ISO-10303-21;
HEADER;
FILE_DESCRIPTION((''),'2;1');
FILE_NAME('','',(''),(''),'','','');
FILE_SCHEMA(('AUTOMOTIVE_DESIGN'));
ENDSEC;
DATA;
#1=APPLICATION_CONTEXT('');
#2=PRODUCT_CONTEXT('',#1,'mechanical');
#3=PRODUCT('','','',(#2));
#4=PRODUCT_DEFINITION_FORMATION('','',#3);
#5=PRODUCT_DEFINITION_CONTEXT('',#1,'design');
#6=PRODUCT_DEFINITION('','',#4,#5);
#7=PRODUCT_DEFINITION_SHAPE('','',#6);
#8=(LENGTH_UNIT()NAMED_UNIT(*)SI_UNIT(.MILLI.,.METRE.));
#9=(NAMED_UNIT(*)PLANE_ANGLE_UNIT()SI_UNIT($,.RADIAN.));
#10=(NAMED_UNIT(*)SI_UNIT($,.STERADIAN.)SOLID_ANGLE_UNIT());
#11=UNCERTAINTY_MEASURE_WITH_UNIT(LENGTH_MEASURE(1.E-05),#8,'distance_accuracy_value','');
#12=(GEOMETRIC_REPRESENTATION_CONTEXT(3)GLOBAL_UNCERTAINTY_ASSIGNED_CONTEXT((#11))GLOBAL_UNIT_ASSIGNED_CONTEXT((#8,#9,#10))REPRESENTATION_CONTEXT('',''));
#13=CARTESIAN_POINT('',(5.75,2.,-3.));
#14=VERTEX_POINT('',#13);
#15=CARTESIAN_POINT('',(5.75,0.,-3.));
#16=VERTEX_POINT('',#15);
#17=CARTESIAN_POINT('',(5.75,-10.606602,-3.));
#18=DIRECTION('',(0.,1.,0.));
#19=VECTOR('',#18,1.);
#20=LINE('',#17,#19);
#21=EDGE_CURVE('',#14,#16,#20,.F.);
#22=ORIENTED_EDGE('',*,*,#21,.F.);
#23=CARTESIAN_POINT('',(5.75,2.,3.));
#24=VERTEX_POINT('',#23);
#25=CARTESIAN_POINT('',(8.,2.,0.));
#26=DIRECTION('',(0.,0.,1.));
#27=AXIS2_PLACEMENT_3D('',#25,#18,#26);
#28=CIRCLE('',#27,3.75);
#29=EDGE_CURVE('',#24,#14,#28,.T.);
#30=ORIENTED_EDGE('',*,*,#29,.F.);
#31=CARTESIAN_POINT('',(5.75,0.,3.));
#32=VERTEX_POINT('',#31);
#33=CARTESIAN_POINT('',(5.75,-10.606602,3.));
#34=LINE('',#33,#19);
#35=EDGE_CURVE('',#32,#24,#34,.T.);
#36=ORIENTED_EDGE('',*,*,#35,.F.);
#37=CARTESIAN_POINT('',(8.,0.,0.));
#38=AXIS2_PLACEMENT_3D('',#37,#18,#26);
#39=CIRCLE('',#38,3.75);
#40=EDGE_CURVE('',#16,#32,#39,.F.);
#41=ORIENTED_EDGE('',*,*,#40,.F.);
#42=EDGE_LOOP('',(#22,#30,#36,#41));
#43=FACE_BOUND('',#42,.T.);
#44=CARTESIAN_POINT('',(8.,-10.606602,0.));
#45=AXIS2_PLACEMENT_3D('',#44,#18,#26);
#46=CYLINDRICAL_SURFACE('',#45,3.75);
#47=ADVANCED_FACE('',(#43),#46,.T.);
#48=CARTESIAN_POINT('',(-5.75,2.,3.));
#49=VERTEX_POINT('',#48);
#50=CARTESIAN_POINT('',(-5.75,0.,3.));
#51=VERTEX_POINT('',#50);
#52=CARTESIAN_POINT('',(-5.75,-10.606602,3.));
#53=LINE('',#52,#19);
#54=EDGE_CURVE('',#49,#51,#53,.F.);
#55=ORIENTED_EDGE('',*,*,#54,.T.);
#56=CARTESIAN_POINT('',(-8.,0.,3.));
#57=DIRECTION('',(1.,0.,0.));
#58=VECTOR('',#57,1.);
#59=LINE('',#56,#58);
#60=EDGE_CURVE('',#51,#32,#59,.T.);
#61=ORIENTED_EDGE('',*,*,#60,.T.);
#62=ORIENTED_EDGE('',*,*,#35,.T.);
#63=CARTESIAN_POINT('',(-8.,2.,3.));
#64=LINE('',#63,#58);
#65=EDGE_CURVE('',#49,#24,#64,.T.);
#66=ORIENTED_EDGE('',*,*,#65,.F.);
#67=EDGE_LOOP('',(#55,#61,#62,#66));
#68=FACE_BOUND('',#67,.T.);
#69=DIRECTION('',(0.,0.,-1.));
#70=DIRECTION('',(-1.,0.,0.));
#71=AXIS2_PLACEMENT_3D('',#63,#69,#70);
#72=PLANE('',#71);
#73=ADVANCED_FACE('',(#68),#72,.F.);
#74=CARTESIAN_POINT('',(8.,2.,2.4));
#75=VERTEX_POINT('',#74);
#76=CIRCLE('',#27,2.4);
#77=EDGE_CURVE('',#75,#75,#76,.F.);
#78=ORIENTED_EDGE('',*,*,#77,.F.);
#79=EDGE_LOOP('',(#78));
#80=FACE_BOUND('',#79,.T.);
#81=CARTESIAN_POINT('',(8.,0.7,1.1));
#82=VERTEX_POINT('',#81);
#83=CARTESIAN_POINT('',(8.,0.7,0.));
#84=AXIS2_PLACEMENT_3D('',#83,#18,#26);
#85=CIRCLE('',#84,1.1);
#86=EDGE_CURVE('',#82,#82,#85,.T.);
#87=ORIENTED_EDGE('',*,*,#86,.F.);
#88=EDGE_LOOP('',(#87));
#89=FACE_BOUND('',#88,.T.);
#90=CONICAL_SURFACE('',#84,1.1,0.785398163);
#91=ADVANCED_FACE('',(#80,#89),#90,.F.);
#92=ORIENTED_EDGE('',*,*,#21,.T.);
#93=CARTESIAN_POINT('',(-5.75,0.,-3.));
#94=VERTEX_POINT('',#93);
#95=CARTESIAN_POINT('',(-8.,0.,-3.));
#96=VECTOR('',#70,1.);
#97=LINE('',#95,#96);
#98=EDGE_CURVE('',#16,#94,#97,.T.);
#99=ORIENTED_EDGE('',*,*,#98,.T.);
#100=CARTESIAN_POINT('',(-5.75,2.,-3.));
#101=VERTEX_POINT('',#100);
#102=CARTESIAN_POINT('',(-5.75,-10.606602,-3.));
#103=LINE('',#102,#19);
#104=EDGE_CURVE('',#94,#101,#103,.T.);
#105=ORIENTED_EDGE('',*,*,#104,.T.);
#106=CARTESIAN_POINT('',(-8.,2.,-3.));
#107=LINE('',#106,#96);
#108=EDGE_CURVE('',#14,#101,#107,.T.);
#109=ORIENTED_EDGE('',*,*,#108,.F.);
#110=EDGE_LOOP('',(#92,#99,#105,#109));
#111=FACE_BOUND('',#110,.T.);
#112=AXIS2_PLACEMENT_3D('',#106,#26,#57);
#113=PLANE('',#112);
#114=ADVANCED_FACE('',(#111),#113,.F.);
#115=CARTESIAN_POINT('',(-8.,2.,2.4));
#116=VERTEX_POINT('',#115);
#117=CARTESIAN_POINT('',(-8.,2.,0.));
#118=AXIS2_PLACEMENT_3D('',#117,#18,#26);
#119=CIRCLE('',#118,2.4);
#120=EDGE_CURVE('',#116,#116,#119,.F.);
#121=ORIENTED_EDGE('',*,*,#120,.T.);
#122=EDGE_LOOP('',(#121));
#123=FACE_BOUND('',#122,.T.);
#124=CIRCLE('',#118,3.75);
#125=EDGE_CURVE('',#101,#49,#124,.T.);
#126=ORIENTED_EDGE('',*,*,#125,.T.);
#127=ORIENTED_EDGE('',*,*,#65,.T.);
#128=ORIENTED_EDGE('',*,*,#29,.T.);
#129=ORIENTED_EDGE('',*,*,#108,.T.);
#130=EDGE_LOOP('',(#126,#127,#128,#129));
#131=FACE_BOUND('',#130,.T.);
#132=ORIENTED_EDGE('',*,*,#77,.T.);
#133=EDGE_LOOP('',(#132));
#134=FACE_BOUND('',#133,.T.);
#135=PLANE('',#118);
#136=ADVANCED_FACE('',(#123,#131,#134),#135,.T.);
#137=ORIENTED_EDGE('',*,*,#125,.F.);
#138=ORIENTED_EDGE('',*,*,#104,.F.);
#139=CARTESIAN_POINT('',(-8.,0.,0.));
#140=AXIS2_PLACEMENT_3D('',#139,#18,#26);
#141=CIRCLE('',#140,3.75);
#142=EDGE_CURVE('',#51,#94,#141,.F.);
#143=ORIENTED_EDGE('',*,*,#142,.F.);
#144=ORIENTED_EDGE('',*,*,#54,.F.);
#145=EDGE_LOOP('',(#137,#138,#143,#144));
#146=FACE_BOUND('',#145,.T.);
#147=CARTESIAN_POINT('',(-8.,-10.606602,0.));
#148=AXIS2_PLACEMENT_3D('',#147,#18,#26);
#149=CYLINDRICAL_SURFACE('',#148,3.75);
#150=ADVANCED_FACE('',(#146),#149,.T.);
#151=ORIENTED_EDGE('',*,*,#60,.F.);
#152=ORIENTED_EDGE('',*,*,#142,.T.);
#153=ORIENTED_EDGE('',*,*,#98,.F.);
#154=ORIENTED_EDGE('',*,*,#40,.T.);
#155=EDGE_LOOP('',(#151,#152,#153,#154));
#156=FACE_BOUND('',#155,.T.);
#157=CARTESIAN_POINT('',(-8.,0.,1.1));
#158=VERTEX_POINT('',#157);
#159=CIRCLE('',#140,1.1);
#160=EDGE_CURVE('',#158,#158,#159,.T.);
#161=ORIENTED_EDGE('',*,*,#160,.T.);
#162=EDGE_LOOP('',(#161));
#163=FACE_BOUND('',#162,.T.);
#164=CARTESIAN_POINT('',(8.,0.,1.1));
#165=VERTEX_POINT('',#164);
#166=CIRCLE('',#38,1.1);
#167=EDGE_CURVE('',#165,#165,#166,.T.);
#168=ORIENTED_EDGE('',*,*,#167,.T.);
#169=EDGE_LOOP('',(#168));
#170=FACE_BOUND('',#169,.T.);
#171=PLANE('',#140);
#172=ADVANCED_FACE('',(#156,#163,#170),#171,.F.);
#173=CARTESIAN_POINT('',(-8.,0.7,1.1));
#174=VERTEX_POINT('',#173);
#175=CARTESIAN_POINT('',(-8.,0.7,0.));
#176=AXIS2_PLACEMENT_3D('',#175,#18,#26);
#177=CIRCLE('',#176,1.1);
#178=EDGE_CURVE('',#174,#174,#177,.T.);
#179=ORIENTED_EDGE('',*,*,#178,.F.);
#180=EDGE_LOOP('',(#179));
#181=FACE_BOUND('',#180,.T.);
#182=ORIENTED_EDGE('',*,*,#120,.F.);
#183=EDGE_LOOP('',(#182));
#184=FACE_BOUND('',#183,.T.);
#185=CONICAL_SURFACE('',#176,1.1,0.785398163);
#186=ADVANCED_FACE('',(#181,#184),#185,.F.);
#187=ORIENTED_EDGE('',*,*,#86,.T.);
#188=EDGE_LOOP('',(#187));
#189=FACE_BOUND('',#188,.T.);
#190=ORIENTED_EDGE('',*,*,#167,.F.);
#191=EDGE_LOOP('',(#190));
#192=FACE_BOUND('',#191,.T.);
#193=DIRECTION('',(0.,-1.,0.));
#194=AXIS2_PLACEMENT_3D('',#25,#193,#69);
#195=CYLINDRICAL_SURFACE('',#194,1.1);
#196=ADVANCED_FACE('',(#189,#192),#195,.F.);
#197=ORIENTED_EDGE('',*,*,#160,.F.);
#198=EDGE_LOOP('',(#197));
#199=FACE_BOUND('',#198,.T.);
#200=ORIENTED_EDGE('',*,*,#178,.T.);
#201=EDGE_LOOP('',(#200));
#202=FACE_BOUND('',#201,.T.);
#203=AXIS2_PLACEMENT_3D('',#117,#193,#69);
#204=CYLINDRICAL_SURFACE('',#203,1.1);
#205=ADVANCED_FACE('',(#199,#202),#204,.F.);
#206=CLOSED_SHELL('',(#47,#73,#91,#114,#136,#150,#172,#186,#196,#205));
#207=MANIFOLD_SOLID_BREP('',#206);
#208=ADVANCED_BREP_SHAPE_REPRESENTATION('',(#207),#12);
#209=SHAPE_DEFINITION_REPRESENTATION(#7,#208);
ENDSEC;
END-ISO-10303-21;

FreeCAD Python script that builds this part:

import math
import FreeCAD as App
import Part
import Sketcher
Q = App.Units.Quantity


def edges_at(feature, points):
    """Names of the edges that pass closest to the given points."""
    edges = feature.Shape.Edges
    near = lambda p: min(range(len(edges)), key=lambda i: edges[i].distToShape(Part.Vertex(*p))[0])
    return sorted({f"Edge{near(p) + 1}" for p in points})

doc = App.newDocument("Part")
params = doc.addObject("Spreadsheet::Sheet", "Params")
for row, (alias, value) in enumerate([
    ("sketch1_radius", "3 mm"),
    ("sketch1_diameter", "2.2 mm"),
    ("sketch1_width", "16 mm"),
    ("pad1_length", "2 mm"),
    ("sketch2_diameter", "7.5 mm"),
    ("sketch2_diameter2", "2.2 mm"),
    ("pad2_length", "2 mm"),
    ("chamfer_size", "1.3 mm"),
], start=1):
    params.set(f"A{row}", alias)
    params.set(f"B{row}", "=" + value)
    params.setAlias(f"B{row}", alias)

body = doc.addObject("PartDesign::Body", "Body")

# Sketch on XZ plane
sketch1 = doc.addObject("Sketcher::SketchObject", "Sketch")
body.addObject(sketch1)
sketch1.AttachmentSupport = (doc.XZ_Plane, [""])
sketch1.MapMode = "FlatFace"
sketch1.addGeometry(Part.LineSegment(App.Vector(8, -3, 0), App.Vector(-8, -3, 0)), False)
sketch1.addGeometry(Part.ArcOfCircle(Part.Circle(App.Vector(-8, 0, 0), App.Vector(0, 0, 1), 3), math.radians(90), math.radians(270)), False)
sketch1.addGeometry(Part.LineSegment(App.Vector(-8, 3, 0), App.Vector(8, 3, 0)), False)
sketch1.addGeometry(Part.ArcOfCircle(Part.Circle(App.Vector(8, 0, 0), App.Vector(0, 0, 1), 3), math.radians(-90), math.radians(90)), False)
sketch1.addGeometry(Part.Circle(App.Vector(8, 0, 0), App.Vector(0, 0, 1), 1.1), False)
sketch1.addGeometry(Part.Circle(App.Vector(-8, 0, 0), App.Vector(0, 0, 1), 1.1), False)
sketch1.addConstraint(Sketcher.Constraint("Tangent", 0, 2, 1, 2))
sketch1.addConstraint(Sketcher.Constraint("Tangent", 1, 1, 2, 1))
sketch1.addConstraint(Sketcher.Constraint("Tangent", 2, 2, 3, 2))
sketch1.addConstraint(Sketcher.Constraint("Tangent", 3, 1, 0, 1))
sketch1.addConstraint(Sketcher.Constraint("Horizontal", 0))
sketch1.addConstraint(Sketcher.Constraint("Horizontal", 2))
sketch1.addConstraint(Sketcher.Constraint("Coincident", 4, 3, 3, 3))
sketch1.addConstraint(Sketcher.Constraint("Coincident", 5, 3, 1, 3))
sketch1.addConstraint(Sketcher.Constraint("Equal", 4, 5))
sketch1.addConstraint(Sketcher.Constraint("Symmetric", 1, 3, 3, 3, -1, 1))
sketch1.addConstraint(Sketcher.Constraint("Radius", 1, Q("3 mm")))
sketch1.addConstraint(Sketcher.Constraint("Diameter", 4, Q("2.2 mm")))
sketch1.addConstraint(Sketcher.Constraint("DistanceX", 0, 2, 0, 1, Q("16 mm")))
sketch1.setExpression("Constraints[10]", "Params.sketch1_radius")
sketch1.setExpression("Constraints[11]", "Params.sketch1_diameter")
sketch1.setExpression("Constraints[12]", "Params.sketch1_width")
pad1 = doc.addObject("PartDesign::Pad", "Pad")
body.addObject(pad1)
pad1.Profile = sketch1
pad1.setExpression("Length", "Params.pad1_length")
pad1.Reversed = True

# Sketch on XZ plane
sketch2 = doc.addObject("Sketcher::SketchObject", "Sketch001")
body.addObject(sketch2)
sketch2.AttachmentSupport = (doc.XZ_Plane, [""])
sketch2.MapMode = "FlatFace"
sketch2.addGeometry(Part.Circle(App.Vector(-8, 0, 0), App.Vector(0, 0, 1), 3.8), False)
sketch2.addGeometry(Part.Circle(App.Vector(-8, 0, 0), App.Vector(0, 0, 1), 1.1), False)
sketch2.addGeometry(Part.Circle(App.Vector(8, 0, 0), App.Vector(0, 0, 1), 3.8), False)
sketch2.addGeometry(Part.Circle(App.Vector(8, 0, 0), App.Vector(0, 0, 1), 1.1), False)
sketch2.addConstraint(Sketcher.Constraint("Coincident", 1, 3, 0, 3))
sketch2.addConstraint(Sketcher.Constraint("Coincident", 3, 3, 2, 3))
sketch2.addConstraint(Sketcher.Constraint("Equal", 0, 2))
sketch2.addConstraint(Sketcher.Constraint("Equal", 1, 3))
sketch2.addConstraint(Sketcher.Constraint("Symmetric", 0, 3, 2, 3, -1, 1))
sketch2.addConstraint(Sketcher.Constraint("PointOnObject", 0, 3, -1))
sketch2.addConstraint(Sketcher.Constraint("Diameter", 0, Q("7.5 mm")))
sketch2.addConstraint(Sketcher.Constraint("Diameter", 1, Q("2.2 mm")))
sketch2.addConstraint(Sketcher.Constraint("DistanceX", 0, 3, -1, 1, Q("8 mm")))
sketch2.setExpression("Constraints[6]", "Params.sketch2_diameter")
sketch2.setExpression("Constraints[7]", "Params.sketch2_diameter2")
pad2 = doc.addObject("PartDesign::Pad", "Pad001")
body.addObject(pad2)
pad2.Profile = sketch2
pad2.setExpression("Length", "Params.pad2_length")
pad2.Reversed = True
doc.recompute()

chamfer = doc.addObject("PartDesign::Chamfer", "Chamfer")
body.addObject(chamfer)
chamfer.Base = (pad2, edges_at(pad2, [(-8, 2, -1.1), (8, 2, -1.1)]))
chamfer.setExpression("Size", "Params.chamfer_size")

doc.recompute()
